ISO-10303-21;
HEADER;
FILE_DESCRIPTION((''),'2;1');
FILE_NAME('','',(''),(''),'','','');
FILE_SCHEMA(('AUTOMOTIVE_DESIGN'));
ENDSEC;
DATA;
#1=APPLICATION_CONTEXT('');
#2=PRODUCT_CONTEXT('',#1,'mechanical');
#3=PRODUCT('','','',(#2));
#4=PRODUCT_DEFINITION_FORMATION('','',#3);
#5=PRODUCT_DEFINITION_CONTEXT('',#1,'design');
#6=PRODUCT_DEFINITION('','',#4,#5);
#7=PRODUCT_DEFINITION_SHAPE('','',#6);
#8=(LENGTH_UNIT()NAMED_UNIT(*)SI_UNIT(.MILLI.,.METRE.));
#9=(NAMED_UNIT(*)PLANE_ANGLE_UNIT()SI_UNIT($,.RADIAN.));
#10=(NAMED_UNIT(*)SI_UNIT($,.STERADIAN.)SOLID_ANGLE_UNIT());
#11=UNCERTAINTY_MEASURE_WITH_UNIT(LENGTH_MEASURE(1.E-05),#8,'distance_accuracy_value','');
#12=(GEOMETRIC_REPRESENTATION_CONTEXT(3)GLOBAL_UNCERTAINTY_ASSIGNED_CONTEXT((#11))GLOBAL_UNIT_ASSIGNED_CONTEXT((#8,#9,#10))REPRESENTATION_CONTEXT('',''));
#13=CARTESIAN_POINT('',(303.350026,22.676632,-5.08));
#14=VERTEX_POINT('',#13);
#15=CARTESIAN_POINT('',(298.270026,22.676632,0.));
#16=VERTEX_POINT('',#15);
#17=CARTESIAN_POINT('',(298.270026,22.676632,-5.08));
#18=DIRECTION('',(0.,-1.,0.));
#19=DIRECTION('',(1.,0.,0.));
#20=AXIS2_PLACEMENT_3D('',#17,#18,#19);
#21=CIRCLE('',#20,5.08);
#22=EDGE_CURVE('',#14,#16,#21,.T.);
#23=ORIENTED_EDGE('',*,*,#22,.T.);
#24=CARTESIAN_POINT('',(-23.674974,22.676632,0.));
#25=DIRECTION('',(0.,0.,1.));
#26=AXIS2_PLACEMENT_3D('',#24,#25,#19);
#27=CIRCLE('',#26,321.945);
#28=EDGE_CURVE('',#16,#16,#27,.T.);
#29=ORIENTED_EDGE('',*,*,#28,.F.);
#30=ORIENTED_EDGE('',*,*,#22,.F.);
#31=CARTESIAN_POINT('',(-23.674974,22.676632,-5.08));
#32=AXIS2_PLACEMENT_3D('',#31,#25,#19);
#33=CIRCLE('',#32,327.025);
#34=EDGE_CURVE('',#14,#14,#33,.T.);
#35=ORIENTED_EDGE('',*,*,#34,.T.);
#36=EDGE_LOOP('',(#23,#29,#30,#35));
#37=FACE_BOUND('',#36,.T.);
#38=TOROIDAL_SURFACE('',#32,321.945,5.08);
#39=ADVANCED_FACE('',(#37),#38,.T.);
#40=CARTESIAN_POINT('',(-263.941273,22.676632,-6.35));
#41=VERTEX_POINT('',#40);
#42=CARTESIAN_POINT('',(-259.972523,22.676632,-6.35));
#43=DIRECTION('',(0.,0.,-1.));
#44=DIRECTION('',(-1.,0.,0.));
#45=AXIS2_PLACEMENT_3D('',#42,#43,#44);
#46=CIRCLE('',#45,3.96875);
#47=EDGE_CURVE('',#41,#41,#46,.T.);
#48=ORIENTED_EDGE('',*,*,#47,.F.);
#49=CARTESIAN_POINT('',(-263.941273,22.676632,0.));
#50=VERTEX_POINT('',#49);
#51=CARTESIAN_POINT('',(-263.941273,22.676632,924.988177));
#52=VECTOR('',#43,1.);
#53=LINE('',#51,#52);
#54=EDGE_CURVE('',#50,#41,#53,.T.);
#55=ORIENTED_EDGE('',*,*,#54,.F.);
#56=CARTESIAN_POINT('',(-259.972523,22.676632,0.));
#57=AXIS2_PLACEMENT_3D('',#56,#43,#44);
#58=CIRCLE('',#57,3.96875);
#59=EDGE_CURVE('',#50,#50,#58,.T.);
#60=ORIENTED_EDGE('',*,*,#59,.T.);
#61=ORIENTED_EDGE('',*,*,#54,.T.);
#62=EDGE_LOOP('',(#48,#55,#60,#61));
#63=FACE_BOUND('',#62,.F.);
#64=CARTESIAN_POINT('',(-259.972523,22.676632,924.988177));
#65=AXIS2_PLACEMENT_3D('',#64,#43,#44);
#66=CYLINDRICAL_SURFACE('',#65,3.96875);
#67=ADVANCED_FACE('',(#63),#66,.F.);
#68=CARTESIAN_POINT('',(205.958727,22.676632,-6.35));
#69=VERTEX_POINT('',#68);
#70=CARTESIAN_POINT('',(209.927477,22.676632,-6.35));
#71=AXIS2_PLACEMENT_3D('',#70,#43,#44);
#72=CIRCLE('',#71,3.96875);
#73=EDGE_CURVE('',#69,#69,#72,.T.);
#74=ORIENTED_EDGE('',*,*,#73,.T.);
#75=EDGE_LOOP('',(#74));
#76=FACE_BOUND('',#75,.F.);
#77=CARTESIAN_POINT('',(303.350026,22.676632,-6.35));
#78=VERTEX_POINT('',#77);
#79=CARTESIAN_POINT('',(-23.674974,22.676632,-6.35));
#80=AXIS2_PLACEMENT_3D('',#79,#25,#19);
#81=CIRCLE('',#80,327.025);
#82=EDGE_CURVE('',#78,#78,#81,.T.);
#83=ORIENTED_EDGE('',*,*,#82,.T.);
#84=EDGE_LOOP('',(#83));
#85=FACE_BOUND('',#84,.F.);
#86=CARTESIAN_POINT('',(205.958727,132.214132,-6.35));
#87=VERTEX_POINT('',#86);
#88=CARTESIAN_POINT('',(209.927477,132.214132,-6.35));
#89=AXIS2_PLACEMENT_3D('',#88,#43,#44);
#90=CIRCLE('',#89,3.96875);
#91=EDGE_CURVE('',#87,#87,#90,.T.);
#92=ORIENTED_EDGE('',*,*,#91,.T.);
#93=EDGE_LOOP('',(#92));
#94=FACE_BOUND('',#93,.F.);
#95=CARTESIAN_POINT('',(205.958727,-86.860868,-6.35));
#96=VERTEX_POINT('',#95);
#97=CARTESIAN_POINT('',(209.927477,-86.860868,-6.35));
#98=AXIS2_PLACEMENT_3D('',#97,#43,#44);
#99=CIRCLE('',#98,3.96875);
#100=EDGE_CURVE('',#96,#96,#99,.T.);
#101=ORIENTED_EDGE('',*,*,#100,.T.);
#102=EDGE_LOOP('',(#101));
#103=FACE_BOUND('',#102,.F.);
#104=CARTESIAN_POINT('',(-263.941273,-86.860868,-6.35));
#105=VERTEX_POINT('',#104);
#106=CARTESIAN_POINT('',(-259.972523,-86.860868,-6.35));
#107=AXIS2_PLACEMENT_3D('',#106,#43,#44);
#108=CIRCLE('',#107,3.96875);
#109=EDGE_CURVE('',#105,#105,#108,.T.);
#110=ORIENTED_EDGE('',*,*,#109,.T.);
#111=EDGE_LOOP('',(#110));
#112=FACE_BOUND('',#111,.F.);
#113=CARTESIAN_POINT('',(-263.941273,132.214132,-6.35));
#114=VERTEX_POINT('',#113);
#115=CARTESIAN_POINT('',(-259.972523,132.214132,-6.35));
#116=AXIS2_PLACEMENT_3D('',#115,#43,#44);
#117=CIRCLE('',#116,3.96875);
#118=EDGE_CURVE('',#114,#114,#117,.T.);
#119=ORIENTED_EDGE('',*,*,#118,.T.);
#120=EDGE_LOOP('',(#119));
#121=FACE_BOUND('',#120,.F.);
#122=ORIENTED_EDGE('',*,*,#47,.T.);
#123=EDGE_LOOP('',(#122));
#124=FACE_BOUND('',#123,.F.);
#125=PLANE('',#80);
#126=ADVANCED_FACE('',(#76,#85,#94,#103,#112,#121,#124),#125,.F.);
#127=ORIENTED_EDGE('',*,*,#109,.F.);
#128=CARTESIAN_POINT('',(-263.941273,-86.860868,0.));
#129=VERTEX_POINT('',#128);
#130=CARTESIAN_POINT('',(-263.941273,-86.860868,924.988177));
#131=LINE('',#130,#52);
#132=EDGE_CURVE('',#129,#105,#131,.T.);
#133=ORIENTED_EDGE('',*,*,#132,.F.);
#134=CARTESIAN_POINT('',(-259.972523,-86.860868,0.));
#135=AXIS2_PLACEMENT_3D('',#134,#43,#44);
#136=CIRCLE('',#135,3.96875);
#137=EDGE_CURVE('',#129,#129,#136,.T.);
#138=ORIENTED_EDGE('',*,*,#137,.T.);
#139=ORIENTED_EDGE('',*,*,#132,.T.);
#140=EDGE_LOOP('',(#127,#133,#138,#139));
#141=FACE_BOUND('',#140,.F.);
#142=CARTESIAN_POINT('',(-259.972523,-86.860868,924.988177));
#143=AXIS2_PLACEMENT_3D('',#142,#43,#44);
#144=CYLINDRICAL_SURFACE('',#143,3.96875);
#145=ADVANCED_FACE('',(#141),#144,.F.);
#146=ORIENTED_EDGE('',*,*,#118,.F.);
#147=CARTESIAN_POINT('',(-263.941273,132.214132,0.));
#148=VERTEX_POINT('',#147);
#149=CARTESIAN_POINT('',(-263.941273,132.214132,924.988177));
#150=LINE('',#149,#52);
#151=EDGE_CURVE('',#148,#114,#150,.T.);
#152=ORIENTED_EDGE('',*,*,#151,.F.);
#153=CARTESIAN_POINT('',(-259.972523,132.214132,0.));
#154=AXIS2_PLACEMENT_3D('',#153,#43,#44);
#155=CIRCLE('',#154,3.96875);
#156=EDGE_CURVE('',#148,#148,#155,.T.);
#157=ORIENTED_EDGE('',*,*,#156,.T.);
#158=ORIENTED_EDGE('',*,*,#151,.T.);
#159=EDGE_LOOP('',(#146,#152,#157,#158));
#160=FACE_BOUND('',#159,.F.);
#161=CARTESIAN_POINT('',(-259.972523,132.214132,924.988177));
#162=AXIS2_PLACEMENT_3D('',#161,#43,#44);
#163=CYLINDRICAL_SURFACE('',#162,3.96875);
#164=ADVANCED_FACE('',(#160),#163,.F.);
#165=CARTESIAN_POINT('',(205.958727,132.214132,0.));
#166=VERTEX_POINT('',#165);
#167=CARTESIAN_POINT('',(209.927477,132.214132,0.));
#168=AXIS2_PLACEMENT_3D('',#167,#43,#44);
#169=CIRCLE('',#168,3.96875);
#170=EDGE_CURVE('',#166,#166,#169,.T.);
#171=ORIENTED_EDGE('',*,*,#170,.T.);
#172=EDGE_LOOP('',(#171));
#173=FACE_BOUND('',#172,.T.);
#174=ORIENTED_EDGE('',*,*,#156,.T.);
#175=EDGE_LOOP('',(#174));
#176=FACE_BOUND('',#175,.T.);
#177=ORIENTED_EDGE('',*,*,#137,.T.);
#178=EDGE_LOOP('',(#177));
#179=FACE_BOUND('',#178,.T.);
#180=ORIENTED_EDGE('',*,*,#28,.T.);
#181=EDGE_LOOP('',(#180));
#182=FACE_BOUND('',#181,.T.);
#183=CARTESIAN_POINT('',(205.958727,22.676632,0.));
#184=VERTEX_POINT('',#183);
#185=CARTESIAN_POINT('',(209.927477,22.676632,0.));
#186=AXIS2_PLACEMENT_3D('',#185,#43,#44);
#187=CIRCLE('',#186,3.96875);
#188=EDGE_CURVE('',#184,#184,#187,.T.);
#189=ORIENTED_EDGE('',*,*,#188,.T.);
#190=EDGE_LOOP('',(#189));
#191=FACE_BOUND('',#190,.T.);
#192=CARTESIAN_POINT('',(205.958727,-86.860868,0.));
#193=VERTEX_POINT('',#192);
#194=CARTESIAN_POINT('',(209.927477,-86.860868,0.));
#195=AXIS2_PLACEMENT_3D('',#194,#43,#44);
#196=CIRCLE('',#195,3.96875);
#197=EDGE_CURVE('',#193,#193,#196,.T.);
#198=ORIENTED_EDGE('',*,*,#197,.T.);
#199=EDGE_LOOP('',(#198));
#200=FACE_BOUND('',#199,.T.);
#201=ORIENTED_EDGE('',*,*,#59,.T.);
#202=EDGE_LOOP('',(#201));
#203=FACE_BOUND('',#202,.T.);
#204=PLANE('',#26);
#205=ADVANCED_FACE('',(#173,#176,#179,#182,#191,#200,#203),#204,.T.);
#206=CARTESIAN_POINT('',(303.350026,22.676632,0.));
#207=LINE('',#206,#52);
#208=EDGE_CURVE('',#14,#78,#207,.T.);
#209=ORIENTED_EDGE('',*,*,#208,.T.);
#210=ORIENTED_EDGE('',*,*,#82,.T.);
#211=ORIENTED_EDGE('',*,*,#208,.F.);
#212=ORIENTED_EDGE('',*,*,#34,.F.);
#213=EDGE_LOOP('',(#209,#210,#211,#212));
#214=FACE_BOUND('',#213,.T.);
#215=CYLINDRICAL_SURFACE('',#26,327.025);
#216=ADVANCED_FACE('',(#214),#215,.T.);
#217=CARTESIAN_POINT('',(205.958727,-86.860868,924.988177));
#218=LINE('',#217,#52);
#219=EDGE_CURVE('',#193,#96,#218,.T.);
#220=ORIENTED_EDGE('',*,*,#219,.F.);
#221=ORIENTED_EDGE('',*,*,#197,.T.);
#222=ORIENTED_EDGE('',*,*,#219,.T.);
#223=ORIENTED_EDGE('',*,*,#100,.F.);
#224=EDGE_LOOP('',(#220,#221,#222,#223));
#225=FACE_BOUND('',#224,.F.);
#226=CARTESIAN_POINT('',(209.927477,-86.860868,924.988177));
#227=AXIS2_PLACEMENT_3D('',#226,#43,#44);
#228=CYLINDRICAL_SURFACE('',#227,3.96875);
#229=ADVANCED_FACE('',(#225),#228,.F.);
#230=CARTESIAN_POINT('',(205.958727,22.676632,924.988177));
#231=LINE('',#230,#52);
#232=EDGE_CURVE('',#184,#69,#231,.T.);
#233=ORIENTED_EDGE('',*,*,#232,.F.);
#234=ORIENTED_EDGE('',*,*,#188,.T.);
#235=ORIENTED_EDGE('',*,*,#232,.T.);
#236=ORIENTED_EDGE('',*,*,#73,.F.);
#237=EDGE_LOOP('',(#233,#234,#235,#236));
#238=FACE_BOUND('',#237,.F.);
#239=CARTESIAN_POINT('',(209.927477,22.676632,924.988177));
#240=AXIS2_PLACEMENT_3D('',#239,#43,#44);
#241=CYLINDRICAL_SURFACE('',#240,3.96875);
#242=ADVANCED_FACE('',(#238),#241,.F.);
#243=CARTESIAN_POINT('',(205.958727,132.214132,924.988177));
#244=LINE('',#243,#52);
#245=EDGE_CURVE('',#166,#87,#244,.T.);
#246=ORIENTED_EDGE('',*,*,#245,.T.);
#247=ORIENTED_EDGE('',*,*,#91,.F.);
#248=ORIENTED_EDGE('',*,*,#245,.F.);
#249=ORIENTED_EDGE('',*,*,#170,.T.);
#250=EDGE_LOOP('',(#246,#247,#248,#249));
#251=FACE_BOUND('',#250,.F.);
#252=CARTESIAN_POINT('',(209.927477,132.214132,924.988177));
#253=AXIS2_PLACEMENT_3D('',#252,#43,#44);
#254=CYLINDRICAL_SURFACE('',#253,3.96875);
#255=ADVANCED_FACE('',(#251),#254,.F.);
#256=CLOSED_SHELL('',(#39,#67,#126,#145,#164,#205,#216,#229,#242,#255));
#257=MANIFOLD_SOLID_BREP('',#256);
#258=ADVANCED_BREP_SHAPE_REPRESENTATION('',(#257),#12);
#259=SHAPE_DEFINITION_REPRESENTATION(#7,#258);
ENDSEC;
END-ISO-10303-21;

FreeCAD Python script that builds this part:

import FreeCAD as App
import Part
import Sketcher
from FreeCAD import Vector
Q = App.Units.Quantity


def edges_at(feature, points):
    """Names of the edges that pass closest to the given points."""
    edges = feature.Shape.Edges
    near = lambda p: min(range(len(edges)), key=lambda i: edges[i].distToShape(Part.Vertex(*p))[0])
    return sorted({f"Edge{near(p) + 1}" for p in points})

doc = App.newDocument("Part")
body = doc.addObject("PartDesign::Body", "Body")

# Sketch on XY plane
sketch1 = body.newObject("Sketcher::SketchObject", "Sketch")
sketch1.AttachmentSupport = (doc.getObject("XY_Plane"), [""])
sketch1.MapMode = "FlatFace"
sketch1.addGeometry(Part.Circle(Vector(-23.674974, 22.676632, 0), Vector(0, 0, 1), 327.025), False)
sketch1.addConstraint(Sketcher.Constraint("Diameter", 0, Q("25.75 in")))
sketch1.addConstraint(Sketcher.Constraint("DistanceX", 0, 3, -1, 1, 23.674974))
sketch1.addConstraint(Sketcher.Constraint("DistanceY", -1, 1, 0, 3, 22.676632))
pad1 = body.newObject("PartDesign::Pad", "Pad")
pad1.Profile = sketch1
pad1.Length = Q("0.25 in")
pad1.Reversed = True

# Sketch on XY plane
sketch2 = body.newObject("Sketcher::SketchObject", "Sketch001")
sketch2.AttachmentSupport = (doc.getObject("XY_Plane"), [""])
sketch2.MapMode = "FlatFace"
sketch2.addGeometry(Part.Circle(Vector(-259.972523, 22.676632, 0), Vector(0, 0, 1), 3.96875), False)
sketch2.addGeometry(Part.Circle(Vector(209.927477, 22.676632, 0), Vector(0, 0, 1), 3.96875), False)
sketch2.addConstraint(Sketcher.Constraint("Equal", 0, 1))
sketch2.addConstraint(Sketcher.Constraint("Horizontal", 0, 3, 1, 3))
sketch2.addConstraint(Sketcher.Constraint("Diameter", 0, Q("0.3125 in")))
sketch2.addConstraint(Sketcher.Constraint("DistanceX", 0, 3, 1, 3, Q("18.5 in")))
sketch2.addConstraint(Sketcher.Constraint("DistanceX", 0, 3, -1, 1, 259.972523))
sketch2.addConstraint(Sketcher.Constraint("DistanceY", -1, 1, 0, 3, 22.676632))
doc.recompute()
hole = body.newObject("PartDesign::Hole", "Hole")
hole.Profile = sketch2
hole.ThreadType = "None"
hole.Diameter = Q("0.3125 in")
hole.DepthType = "ThroughAll"

# Sketch on XY plane
sketch3 = body.newObject("Sketcher::SketchObject", "Sketch002")
sketch3.AttachmentSupport = (doc.getObject("XY_Plane"), [""])
sketch3.MapMode = "FlatFace"
sketch3.addGeometry(Part.Circle(Vector(-259.972523, 132.214132, 0), Vector(0, 0, 1), 3.96875), False)
sketch3.addGeometry(Part.Circle(Vector(-259.972523, -86.860868, 0), Vector(0, 0, 1), 3.96875), False)
sketch3.addGeometry(Part.Circle(Vector(209.927477, -86.860868, 0), Vector(0, 0, 1), 3.96875), False)
sketch3.addGeometry(Part.Circle(Vector(209.927477, 132.214132, 0), Vector(0, 0, 1), 3.96875), False)
sketch3.addConstraint(Sketcher.Constraint("Equal", 0, 1))
sketch3.addConstraint(Sketcher.Constraint("Equal", 1, 2))
sketch3.addConstraint(Sketcher.Constraint("Equal", 2, 3))
sketch3.addConstraint(Sketcher.Constraint("Horizontal", 1, 3, 2, 3))
sketch3.addConstraint(Sketcher.Constraint("Horizontal", 0, 3, 3, 3))
sketch3.addConstraint(Sketcher.Constraint("Vertical", 0, 3, 1, 3))
sketch3.addConstraint(Sketcher.Constraint("Vertical", 2, 3, 3, 3))
sketch3.addConstraint(Sketcher.Constraint("Diameter", 0, Q("0.3125 in")))
sketch3.addConstraint(Sketcher.Constraint("DistanceX", 1, 3, 2, 3, Q("18.5 in")))
sketch3.addConstraint(Sketcher.Constraint("DistanceY", 1, 3, 0, 3, Q("8.625 in")))
sketch3.addConstraint(Sketcher.Constraint("DistanceY", -1, 1, 0, 3, 132.214132))
sketch3.addConstraint(Sketcher.Constraint("DistanceX", 0, 3, -1, 1, 259.972523))
doc.recompute()
hole2 = body.newObject("PartDesign::Hole", "Hole001")
hole2.Profile = sketch3
hole2.ThreadType = "None"
hole2.Diameter = Q("0.3125 in")
hole2.DepthType = "ThroughAll"
doc.recompute()

fillet = body.newObject("PartDesign::Fillet", "Fillet")
fillet.Base = (hole2, edges_at(hole2, [(-350.7, 22.677, 0)]))
fillet.Radius = Q("0.2 in")

doc.recompute()
